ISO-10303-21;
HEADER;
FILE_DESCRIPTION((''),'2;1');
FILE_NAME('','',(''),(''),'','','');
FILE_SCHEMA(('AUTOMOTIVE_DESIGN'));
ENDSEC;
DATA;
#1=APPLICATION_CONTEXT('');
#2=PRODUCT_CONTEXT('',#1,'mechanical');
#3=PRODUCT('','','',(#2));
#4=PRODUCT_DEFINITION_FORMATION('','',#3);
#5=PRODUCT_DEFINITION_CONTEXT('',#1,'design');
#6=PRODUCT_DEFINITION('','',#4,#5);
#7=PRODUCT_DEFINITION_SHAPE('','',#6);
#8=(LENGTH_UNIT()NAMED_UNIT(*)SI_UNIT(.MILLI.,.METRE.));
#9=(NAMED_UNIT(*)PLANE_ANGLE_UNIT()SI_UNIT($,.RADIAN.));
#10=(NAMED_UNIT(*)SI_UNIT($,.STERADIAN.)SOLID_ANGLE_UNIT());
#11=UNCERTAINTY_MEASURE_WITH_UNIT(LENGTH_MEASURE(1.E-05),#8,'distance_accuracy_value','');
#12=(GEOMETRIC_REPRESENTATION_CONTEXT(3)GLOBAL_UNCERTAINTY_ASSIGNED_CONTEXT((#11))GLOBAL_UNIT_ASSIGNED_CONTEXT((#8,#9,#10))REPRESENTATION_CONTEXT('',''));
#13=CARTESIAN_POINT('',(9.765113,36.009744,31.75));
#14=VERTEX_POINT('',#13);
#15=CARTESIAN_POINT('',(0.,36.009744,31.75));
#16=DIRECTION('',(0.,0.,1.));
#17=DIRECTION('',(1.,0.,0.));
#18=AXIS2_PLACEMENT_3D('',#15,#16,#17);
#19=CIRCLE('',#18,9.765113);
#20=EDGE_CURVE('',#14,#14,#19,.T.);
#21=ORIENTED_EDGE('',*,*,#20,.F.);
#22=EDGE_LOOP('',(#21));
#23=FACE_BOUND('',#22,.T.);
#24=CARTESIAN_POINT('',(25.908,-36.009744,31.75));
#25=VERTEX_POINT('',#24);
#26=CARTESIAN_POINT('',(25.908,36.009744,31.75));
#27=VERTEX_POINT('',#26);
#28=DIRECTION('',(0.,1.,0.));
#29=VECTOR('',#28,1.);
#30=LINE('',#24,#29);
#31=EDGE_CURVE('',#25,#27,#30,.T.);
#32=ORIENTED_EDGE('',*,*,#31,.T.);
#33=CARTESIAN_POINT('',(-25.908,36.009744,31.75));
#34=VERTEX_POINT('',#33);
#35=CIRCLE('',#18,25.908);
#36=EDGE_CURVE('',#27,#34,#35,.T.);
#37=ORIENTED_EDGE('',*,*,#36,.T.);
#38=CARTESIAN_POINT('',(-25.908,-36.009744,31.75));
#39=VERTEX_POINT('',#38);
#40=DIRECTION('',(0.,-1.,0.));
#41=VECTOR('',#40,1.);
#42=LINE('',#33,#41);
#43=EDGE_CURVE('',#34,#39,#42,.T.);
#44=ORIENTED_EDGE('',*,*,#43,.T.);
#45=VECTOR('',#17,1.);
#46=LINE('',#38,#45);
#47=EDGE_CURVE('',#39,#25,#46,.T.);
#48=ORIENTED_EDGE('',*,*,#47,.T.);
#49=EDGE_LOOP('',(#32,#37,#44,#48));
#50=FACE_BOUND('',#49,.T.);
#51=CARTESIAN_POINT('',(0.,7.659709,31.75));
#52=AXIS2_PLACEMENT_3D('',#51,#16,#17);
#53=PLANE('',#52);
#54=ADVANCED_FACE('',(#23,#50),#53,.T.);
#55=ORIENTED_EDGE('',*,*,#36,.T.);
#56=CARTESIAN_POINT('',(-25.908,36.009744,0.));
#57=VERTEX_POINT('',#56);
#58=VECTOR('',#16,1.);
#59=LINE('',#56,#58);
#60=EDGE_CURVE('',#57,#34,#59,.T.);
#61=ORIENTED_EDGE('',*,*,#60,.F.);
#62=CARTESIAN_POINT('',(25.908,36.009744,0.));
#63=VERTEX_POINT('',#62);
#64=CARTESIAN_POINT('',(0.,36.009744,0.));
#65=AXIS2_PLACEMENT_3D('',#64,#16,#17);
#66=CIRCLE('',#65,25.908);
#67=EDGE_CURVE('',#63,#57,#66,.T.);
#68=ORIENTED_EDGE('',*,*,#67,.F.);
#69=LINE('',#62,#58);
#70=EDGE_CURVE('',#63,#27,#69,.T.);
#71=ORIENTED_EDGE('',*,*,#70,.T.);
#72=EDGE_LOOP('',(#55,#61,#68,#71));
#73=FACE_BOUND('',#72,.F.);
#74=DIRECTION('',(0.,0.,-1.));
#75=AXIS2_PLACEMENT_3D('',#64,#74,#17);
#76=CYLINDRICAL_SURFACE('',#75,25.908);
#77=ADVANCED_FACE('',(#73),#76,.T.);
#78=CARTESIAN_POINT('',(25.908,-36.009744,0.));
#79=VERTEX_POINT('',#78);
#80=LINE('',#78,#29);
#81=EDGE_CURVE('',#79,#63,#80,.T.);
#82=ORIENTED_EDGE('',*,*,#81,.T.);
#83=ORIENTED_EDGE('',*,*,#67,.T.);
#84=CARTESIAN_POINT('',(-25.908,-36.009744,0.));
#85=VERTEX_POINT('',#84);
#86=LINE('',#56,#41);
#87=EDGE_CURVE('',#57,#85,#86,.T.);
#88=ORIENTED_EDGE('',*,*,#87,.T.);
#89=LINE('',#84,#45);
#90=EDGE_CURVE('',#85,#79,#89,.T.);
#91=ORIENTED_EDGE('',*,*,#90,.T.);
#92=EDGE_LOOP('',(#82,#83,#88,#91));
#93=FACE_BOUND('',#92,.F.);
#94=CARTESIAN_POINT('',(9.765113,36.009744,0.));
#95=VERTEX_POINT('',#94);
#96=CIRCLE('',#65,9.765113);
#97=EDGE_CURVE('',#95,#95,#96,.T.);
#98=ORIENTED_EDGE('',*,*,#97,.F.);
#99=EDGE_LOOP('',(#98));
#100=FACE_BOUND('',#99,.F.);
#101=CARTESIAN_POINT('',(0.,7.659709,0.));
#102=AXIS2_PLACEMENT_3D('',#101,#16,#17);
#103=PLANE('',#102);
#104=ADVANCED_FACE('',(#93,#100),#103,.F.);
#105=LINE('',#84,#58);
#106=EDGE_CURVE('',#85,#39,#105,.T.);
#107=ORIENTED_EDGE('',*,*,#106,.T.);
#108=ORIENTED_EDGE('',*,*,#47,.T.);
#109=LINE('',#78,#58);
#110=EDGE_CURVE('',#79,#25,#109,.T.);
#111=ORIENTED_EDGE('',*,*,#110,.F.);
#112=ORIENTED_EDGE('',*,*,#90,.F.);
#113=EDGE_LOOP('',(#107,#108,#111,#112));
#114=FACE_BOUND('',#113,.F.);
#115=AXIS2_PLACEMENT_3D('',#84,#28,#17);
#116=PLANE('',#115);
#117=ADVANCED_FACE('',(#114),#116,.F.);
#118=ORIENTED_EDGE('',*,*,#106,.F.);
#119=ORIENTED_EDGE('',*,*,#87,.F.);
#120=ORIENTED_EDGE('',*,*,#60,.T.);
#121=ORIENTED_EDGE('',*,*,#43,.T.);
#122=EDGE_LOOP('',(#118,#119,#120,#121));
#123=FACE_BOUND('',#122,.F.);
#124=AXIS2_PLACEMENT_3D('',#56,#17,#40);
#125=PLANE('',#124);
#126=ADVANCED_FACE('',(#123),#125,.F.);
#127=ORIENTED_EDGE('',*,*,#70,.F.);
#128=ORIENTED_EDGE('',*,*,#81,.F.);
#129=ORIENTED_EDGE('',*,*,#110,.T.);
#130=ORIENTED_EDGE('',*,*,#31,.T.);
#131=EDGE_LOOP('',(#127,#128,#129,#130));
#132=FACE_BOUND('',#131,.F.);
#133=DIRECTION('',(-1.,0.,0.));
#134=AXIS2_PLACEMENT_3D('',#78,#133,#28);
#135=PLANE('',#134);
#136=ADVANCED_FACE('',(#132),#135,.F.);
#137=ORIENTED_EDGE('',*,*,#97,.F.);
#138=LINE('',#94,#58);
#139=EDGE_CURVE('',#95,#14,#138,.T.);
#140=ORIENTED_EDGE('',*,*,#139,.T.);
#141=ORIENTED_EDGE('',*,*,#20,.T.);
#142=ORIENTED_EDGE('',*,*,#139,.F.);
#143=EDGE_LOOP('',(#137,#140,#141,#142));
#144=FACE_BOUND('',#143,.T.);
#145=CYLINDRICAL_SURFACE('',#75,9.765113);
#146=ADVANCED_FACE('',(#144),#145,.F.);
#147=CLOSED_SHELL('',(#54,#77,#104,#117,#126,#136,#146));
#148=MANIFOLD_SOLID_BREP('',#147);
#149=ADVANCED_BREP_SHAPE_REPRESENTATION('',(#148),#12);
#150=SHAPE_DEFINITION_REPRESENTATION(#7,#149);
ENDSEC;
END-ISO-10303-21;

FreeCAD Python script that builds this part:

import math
import FreeCAD as App
import Part
import Sketcher
from FreeCAD import Vector
Q = App.Units.Quantity

doc = App.newDocument("Part")
body = doc.addObject("PartDesign::Body", "Body")

# Sketch on XY plane
sketch1 = body.newObject("Sketcher::SketchObject", "Sketch")
sketch1.AttachmentSupport = (doc.getObject("XY_Plane"), [""])
sketch1.MapMode = "FlatFace"
sketch1.addGeometry([
    Part.LineSegment(Vector(-26, -36, 0), Vector(26, -36, 0)),  # 0
    Part.LineSegment(Vector(26, -36, 0), Vector(26, 36, 0)),  # 1
    Part.ArcOfCircle(Part.Circle(Vector(0, 36, 0), Vector(0, 0, 1), 26), math.radians(0), math.radians(180)),  # 2
    Part.LineSegment(Vector(-26, 36, 0), Vector(-26, -36, 0)),  # 3
    Part.Circle(Vector(0, 36, 0), Vector(0, 0, 1), 10),  # 4
], False)
sketch1.addConstraint([
    Sketcher.Constraint("Coincident", 0, 2, 1, 1),
    Sketcher.Constraint("Tangent", 1, 2, 2, 1),
    Sketcher.Constraint("Tangent", 2, 2, 3, 1),
    Sketcher.Constraint("Coincident", 3, 2, 0, 1),
    Sketcher.Constraint("Horizontal", 0),
    Sketcher.Constraint("Vertical", 1),
    Sketcher.Constraint("Vertical", 3),
    Sketcher.Constraint("Coincident", 4, 3, 2, 3),
    Sketcher.Constraint("Symmetric", 0, 2, 2, 2, -1, 1),
    Sketcher.Constraint("Radius", 2, Q("1.02 in")),
    Sketcher.Constraint("Diameter", 4, 19.530226),
    Sketcher.Constraint("DistanceY", 1, 1, 1, 2, 72.019488),
])
pad1 = body.newObject("PartDesign::Pad", "Pad")
pad1.Profile = sketch1
pad1.Length = Q("1.25 in")

doc.recompute()
